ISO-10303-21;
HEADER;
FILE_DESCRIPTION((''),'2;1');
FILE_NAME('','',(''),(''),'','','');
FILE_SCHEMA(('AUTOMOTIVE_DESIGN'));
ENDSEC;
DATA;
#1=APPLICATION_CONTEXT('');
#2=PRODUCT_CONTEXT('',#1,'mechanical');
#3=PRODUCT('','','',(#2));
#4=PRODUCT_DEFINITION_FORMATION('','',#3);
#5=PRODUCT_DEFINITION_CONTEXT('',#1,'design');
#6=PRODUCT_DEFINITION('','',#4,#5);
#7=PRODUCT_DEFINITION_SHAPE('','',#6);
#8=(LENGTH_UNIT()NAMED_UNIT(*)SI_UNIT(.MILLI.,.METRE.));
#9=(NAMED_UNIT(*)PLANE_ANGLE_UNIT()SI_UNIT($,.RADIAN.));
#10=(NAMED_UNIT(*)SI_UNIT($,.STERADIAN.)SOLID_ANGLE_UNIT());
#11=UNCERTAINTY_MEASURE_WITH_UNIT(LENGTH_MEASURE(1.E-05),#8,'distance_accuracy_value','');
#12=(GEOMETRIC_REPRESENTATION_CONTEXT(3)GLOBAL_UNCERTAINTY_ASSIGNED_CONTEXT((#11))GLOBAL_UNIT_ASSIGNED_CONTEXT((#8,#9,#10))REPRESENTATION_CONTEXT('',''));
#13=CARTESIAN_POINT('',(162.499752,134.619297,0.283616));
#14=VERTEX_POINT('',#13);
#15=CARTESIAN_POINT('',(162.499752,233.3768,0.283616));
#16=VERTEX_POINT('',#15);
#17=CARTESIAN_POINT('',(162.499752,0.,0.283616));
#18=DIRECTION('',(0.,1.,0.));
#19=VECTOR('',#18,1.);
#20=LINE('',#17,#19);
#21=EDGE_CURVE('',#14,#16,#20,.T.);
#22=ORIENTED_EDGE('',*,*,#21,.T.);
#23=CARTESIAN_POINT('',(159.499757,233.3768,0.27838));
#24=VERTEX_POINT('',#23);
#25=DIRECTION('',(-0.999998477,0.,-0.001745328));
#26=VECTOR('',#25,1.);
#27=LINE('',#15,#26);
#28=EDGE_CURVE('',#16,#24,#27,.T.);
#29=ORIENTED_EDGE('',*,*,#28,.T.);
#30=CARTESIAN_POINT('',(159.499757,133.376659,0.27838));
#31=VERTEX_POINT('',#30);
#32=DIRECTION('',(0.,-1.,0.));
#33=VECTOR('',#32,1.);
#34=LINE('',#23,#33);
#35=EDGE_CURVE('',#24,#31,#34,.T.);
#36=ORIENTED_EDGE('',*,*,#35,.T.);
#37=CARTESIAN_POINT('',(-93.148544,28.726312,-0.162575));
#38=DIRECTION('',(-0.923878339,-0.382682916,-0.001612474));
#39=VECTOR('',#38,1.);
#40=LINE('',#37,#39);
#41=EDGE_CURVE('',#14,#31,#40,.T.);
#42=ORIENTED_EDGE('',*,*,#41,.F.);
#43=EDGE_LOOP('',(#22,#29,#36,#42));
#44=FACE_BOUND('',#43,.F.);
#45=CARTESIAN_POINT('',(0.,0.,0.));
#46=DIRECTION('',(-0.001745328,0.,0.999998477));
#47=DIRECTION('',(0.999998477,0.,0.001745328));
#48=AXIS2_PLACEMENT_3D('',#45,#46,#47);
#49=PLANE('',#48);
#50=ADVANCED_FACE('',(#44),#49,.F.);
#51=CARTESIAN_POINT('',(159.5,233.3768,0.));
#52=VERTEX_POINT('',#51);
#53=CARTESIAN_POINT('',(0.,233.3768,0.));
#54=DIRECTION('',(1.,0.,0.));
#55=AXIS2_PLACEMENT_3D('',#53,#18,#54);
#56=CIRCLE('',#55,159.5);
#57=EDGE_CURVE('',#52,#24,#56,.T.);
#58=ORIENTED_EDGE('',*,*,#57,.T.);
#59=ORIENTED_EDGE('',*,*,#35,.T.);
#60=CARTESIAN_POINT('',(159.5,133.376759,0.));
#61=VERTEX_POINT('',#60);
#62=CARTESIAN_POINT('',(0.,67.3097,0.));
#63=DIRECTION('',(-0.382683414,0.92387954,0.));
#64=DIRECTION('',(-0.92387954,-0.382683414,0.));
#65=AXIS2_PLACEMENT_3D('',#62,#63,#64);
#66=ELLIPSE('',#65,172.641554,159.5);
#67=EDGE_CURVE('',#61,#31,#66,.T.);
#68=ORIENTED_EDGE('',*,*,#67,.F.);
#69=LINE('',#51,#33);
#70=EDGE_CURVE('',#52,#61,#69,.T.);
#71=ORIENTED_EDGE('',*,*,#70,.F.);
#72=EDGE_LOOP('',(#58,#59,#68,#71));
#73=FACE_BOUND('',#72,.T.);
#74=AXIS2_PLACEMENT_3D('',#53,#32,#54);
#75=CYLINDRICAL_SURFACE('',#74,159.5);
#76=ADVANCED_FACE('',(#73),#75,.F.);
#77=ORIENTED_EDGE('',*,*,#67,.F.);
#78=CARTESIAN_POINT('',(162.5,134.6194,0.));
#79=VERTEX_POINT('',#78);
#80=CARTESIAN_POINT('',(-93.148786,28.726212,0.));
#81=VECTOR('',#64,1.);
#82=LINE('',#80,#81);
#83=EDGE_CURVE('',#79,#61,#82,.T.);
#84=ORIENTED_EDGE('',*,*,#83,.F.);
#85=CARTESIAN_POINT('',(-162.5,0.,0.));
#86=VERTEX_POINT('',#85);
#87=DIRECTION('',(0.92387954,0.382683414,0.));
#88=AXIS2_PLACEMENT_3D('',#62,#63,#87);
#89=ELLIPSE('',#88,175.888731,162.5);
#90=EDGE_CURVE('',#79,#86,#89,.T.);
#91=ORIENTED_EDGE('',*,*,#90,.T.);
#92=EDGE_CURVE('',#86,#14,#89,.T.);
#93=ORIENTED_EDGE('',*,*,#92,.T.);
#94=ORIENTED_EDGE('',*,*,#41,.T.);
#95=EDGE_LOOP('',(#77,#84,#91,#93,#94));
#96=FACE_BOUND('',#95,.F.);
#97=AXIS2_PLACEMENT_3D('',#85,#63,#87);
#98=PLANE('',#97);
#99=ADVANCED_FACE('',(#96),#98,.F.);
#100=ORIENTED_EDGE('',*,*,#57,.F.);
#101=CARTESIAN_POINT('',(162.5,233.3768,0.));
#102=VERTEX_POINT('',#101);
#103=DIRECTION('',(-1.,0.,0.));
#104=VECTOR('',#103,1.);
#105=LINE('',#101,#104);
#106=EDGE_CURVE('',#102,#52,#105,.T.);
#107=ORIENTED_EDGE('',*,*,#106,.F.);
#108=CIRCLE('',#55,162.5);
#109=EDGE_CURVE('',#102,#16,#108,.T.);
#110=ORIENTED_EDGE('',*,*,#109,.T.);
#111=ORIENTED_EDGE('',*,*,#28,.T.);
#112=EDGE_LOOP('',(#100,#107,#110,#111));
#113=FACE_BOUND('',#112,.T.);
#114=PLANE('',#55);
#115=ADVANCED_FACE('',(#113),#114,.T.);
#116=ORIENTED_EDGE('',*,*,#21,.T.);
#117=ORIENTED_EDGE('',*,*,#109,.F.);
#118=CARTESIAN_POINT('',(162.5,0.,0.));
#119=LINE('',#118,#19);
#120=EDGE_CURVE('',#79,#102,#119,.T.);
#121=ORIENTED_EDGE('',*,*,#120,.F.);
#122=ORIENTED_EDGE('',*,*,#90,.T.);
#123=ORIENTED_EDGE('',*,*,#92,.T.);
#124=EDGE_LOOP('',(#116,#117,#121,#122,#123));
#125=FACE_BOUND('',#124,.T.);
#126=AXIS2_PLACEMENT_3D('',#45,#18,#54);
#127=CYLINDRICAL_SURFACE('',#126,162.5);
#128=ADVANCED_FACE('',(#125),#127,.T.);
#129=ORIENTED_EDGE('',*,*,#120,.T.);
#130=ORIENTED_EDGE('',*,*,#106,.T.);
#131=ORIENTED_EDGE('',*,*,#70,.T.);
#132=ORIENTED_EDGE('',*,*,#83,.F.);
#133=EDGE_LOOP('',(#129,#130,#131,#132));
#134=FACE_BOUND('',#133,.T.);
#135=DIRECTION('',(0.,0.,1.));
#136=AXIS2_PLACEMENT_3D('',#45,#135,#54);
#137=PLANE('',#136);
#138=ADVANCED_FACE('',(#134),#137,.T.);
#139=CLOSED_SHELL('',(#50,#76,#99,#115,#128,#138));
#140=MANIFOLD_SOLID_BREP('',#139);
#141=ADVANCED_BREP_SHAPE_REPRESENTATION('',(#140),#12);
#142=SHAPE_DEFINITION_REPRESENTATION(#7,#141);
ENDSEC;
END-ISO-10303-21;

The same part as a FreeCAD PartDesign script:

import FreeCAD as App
import Part
import Sketcher

V = App.Vector
Q = App.Units.Quantity

doc = App.newDocument("Part")
params = doc.addObject("Spreadsheet::Sheet", "Params")
for row, (alias, value) in enumerate([
    ("sketch1_width", "3 mm"),
    ("revolution_angle", "359.9 deg"),
    ("sketch2_width", "325 mm"),
], start=1):
    params.set(f"A{row}", alias)
    params.set(f"B{row}", "=" + value)
    params.setAlias(f"B{row}", alias)

body = doc.addObject("PartDesign::Body", "Body")

# Sketch on XY plane
sketch1 = body.newObject("Sketcher::SketchObject", "Sketch")
sketch1.AttachmentSupport = (doc.getObject("XY_Plane"), [""])
sketch1.MapMode = "FlatFace"
sketch1.addGeometry([
    Part.LineSegment(V(159.5, 233.4, 0), V(159.5, 0, 0)),
    Part.LineSegment(V(159.5, 0, 0), V(162.5, 0, 0)),
    Part.LineSegment(V(162.5, 0, 0), V(162.5, 233.4, 0)),
    Part.LineSegment(V(162.5, 233.4, 0), V(159.5, 233.4, 0)),
], False)
sketch1.addConstraint([
    Sketcher.Constraint("Coincident", 0, 2, 1, 1),
    Sketcher.Constraint("Coincident", 1, 2, 2, 1),
    Sketcher.Constraint("Coincident", 2, 2, 3, 1),
    Sketcher.Constraint("Coincident", 3, 2, 0, 1),
    Sketcher.Constraint("Vertical", 0),
    Sketcher.Constraint("Horizontal", 1),
    Sketcher.Constraint("Vertical", 2),
    Sketcher.Constraint("Horizontal", 3),
    Sketcher.Constraint("PointOnObject", 0, 2, -1),
    Sketcher.Constraint("DistanceX", 1, 1, 1, 2, Q("3 mm")),
    Sketcher.Constraint("DistanceY", 0, 2, 0, 1, Q("233.3768 mm")),
    Sketcher.Constraint("DistanceX", -1, 1, 0, 2, Q("159.5 mm")),
])
sketch1.setExpression("Constraints[9]", "Params.sketch1_width")
revolution = body.newObject("PartDesign::Revolution", "Revolution")
revolution.Profile = sketch1
revolution.ReferenceAxis = (sketch1, ["V_Axis"])
revolution.setExpression("Angle", "Params.revolution_angle")

# Sketch on XY plane
sketch2 = body.newObject("Sketcher::SketchObject", "Sketch001")
sketch2.AttachmentSupport = (doc.getObject("XY_Plane"), [""])
sketch2.MapMode = "FlatFace"
sketch2.addGeometry([
    Part.LineSegment(V(-162, 0, 0), V(162, 0, 0)),
    Part.LineSegment(V(162, 0, 0), V(162, 135, 0)),
    Part.LineSegment(V(162, 135, 0), V(-162, 0, 0)),
], False)
sketch2.addConstraint([
    Sketcher.Constraint("Coincident", 0, 2, 1, 1),
    Sketcher.Constraint("Coincident", 1, 2, 2, 1),
    Sketcher.Constraint("Coincident", 2, 2, 0, 1),
    Sketcher.Constraint("Horizontal", 0),
    Sketcher.Constraint("Vertical", 1),
    Sketcher.Constraint("Symmetric", 0, 2, 2, 2, -1, 1),
    Sketcher.Constraint("DistanceX", 0, 1, 0, 2, Q("325 mm")),
    Sketcher.Constraint("Angle", 2, Q("-157.5 deg")),
])
sketch2.setExpression("Constraints[6]", "Params.sketch2_width")
pocket1 = body.newObject("PartDesign::Pocket", "Pocket")
pocket1.Profile = sketch2
pocket1.Type = "ThroughAll"
pocket1.Midplane = True

doc.recompute()
